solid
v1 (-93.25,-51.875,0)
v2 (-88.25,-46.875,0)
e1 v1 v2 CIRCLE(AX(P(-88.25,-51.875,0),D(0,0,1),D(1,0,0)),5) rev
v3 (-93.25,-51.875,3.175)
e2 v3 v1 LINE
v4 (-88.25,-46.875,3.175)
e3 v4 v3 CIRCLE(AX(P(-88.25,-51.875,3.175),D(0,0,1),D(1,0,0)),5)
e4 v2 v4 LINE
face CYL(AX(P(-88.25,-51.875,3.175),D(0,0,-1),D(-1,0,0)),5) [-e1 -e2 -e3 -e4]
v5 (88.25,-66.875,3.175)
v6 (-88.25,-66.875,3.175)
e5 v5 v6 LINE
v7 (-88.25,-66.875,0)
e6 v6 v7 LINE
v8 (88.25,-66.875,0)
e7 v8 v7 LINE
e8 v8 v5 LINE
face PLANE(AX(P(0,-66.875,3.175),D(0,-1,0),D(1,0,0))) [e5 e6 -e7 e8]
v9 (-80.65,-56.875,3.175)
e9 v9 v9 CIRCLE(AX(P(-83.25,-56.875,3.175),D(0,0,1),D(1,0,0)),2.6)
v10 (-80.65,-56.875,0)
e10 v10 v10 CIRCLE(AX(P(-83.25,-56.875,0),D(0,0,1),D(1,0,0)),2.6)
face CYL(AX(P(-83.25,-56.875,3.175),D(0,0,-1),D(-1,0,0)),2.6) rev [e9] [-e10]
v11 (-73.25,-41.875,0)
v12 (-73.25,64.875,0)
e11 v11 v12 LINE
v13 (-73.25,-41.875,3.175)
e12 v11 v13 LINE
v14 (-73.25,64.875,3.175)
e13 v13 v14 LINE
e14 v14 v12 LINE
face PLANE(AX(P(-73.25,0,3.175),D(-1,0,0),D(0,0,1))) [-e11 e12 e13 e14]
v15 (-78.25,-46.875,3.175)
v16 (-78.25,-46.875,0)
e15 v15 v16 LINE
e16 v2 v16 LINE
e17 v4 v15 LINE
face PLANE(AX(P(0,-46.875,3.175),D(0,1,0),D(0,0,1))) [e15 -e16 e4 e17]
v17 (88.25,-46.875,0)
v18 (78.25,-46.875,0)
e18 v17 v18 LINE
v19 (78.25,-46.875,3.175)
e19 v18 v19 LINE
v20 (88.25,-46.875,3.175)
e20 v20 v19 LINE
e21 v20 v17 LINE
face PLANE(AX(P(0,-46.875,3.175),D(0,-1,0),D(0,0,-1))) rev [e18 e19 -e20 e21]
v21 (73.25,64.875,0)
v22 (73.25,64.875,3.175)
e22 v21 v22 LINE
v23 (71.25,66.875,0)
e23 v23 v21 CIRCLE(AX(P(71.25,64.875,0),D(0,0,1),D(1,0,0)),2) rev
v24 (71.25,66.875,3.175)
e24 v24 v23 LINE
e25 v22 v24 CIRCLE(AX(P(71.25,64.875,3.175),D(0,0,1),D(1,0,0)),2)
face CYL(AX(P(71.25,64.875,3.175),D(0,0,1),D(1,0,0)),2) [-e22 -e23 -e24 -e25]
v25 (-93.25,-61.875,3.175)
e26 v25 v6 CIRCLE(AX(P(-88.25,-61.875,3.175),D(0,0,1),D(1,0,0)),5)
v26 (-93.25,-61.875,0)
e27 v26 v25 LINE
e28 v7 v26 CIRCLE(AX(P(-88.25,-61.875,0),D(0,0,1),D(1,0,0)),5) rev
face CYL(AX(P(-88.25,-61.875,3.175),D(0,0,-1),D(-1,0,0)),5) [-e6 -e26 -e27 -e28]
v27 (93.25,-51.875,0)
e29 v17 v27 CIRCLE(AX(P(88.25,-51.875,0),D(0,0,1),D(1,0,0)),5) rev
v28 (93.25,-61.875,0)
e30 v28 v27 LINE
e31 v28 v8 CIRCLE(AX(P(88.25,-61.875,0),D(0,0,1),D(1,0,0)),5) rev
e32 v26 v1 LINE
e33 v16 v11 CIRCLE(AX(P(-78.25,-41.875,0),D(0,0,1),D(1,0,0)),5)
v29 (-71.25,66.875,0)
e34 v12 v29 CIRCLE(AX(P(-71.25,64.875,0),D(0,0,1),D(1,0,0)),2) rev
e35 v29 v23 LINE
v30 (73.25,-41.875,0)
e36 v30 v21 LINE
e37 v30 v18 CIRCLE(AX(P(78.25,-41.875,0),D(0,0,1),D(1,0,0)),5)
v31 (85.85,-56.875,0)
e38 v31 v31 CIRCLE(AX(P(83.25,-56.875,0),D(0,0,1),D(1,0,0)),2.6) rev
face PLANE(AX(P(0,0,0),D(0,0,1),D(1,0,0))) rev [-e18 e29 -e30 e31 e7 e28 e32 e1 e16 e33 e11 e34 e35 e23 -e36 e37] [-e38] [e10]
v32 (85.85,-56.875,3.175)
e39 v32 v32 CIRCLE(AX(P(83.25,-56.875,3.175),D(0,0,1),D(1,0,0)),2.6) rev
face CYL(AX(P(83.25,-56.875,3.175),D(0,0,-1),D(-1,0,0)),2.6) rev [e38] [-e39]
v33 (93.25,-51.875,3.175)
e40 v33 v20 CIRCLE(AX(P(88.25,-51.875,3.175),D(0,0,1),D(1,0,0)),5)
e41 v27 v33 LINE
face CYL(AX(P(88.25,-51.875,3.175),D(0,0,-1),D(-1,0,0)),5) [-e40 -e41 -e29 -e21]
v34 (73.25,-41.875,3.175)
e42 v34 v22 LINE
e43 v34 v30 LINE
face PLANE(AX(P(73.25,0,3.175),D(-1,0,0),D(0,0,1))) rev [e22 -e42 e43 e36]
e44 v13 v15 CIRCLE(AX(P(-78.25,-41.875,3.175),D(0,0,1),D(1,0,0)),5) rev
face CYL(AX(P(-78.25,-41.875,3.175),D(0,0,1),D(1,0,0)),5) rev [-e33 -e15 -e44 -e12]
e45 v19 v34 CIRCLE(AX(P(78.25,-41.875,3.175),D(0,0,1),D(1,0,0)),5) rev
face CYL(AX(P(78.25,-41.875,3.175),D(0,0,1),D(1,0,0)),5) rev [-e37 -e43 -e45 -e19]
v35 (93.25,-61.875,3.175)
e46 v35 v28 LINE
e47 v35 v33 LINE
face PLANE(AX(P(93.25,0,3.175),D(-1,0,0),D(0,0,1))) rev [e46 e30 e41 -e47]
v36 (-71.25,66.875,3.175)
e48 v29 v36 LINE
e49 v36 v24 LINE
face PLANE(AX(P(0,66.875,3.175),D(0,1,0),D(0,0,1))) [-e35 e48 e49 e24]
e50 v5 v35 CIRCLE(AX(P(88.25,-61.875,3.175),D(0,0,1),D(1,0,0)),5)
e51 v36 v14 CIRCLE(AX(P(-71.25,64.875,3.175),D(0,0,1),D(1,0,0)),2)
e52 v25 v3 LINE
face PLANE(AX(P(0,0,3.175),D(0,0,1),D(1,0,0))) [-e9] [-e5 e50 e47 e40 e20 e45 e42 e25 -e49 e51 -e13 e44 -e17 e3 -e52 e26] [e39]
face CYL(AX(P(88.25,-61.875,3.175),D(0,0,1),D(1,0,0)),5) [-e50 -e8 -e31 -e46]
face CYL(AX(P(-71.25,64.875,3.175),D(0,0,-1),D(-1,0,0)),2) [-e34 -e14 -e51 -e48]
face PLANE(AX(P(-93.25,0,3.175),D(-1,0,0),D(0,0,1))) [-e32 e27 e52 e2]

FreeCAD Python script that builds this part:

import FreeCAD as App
import Part
import Sketcher

V = App.Vector


def edges_at(feature, points):
    """Names of the edges that pass closest to the given points."""
    edges = feature.Shape.Edges
    near = lambda p: min(range(len(edges)), key=lambda i: edges[i].distToShape(Part.Vertex(*p))[0])
    return sorted({f"Edge{near(p) + 1}" for p in points})

doc = App.newDocument("Part")
body = doc.addObject("PartDesign::Body", "Body")

# Sketch on XY plane
sketch1 = body.newObject("Sketcher::SketchObject", "Sketch")
sketch1.AttachmentSupport = (doc.getObject("XY_Plane"), [""])
sketch1.MapMode = "FlatFace"
sketch1.addGeometry(Part.LineSegment(V(-93.25, -46.875, 0), V(-93.25, -66.875, 0)), False)
sketch1.addGeometry(Part.LineSegment(V(-93.25, -66.875, 0), V(93.25, -66.875, 0)), False)
sketch1.addGeometry(Part.LineSegment(V(93.25, -66.875, 0), V(93.25, -46.875, 0)), False)
sketch1.addGeometry(Part.LineSegment(V(93.25, -46.875, 0), V(73.25, -46.875, 0)), False)
sketch1.addGeometry(Part.LineSegment(V(73.25, -46.875, 0), V(73.25, 66.875, 0)), False)
sketch1.addGeometry(Part.LineSegment(V(73.25, 66.875, 0), V(-73.25, 66.875, 0)), False)
sketch1.addGeometry(Part.LineSegment(V(-73.25, 66.875, 0), V(-73.25, -46.875, 0)), False)
sketch1.addGeometry(Part.LineSegment(V(-73.25, -46.875, 0), V(-93.25, -46.875, 0)), False)
sketch1.addGeometry(Part.Circle(V(-83.25, -56.875, 0), V(0, 0, 1), 2.6), False)
sketch1.addGeometry(Part.Circle(V(83.25, -56.875, 0), V(0, 0, 1), 2.6), False)
sketch1.addConstraint(Sketcher.Constraint("Coincident", 0, 2, 1, 1))
sketch1.addConstraint(Sketcher.Constraint("Coincident", 1, 2, 2, 1))
sketch1.addConstraint(Sketcher.Constraint("Coincident", 2, 2, 3, 1))
sketch1.addConstraint(Sketcher.Constraint("Coincident", 3, 2, 4, 1))
sketch1.addConstraint(Sketcher.Constraint("Coincident", 4, 2, 5, 1))
sketch1.addConstraint(Sketcher.Constraint("Coincident", 5, 2, 6, 1))
sketch1.addConstraint(Sketcher.Constraint("Coincident", 6, 2, 7, 1))
sketch1.addConstraint(Sketcher.Constraint("Coincident", 7, 2, 0, 1))
sketch1.addConstraint(Sketcher.Constraint("Vertical", 0))
sketch1.addConstraint(Sketcher.Constraint("Horizontal", 1))
sketch1.addConstraint(Sketcher.Constraint("Vertical", 2))
sketch1.addConstraint(Sketcher.Constraint("Horizontal", 3))
sketch1.addConstraint(Sketcher.Constraint("Vertical", 4))
sketch1.addConstraint(Sketcher.Constraint("Horizontal", 5))
sketch1.addConstraint(Sketcher.Constraint("Vertical", 6))
sketch1.addConstraint(Sketcher.Constraint("Horizontal", 7))
sketch1.addConstraint(Sketcher.Constraint("Equal", 8, 9))
sketch1.addConstraint(Sketcher.Constraint("Symmetric", 8, 3, 9, 3, -2))
sketch1.addConstraint(Sketcher.Constraint("Symmetric", 3, 2, 6, 2, -2))
sketch1.addConstraint(Sketcher.Constraint("Equal", 3, 7))
sketch1.addConstraint(Sketcher.Constraint("Equal", 7, 0))
sketch1.addConstraint(Sketcher.Constraint("Diameter", 8, 5.2))
sketch1.addConstraint(Sketcher.Constraint("DistanceX", 3, 2, 3, 1, 20.0))
sketch1.addConstraint(Sketcher.Constraint("DistanceX", 1, 1, 1, 2, 186.5))
sketch1.addConstraint(Sketcher.Constraint("DistanceX", 0, 2, 8, 3, 10.0))
sketch1.addConstraint(Sketcher.Constraint("DistanceY", 0, 2, 8, 3, 10.0))
sketch1.addConstraint(Sketcher.Constraint("DistanceY", 4, 1, 4, 2, 113.75))
sketch1.addConstraint(Sketcher.Constraint("DistanceY", 8, 3, -1, 1, 56.875))
pad1 = body.newObject("PartDesign::Pad", "Pad")
pad1.Profile = sketch1
pad1.Length = 3.175
doc.recompute()

fillet = body.newObject("PartDesign::Fillet", "Fillet")
fillet.Base = (pad1, edges_at(pad1, [
    (-73.25, -46.875, 1.587),
    (73.25, -46.875, 1.587),
    (93.25, -46.875, 1.587),
    (93.25, -66.875, 1.587),
    (-93.25, -66.875, 1.587),
    (-93.25, -46.875, 1.587),
]))
fillet.Radius = 5
doc.recompute()

fillet2 = body.newObject("PartDesign::Fillet", "Fillet001")
fillet2.Base = (fillet, edges_at(fillet, [(-73.25, 66.875, 1.587), (73.25, 66.875, 1.587)]))
fillet2.Radius = 2

doc.recompute()
